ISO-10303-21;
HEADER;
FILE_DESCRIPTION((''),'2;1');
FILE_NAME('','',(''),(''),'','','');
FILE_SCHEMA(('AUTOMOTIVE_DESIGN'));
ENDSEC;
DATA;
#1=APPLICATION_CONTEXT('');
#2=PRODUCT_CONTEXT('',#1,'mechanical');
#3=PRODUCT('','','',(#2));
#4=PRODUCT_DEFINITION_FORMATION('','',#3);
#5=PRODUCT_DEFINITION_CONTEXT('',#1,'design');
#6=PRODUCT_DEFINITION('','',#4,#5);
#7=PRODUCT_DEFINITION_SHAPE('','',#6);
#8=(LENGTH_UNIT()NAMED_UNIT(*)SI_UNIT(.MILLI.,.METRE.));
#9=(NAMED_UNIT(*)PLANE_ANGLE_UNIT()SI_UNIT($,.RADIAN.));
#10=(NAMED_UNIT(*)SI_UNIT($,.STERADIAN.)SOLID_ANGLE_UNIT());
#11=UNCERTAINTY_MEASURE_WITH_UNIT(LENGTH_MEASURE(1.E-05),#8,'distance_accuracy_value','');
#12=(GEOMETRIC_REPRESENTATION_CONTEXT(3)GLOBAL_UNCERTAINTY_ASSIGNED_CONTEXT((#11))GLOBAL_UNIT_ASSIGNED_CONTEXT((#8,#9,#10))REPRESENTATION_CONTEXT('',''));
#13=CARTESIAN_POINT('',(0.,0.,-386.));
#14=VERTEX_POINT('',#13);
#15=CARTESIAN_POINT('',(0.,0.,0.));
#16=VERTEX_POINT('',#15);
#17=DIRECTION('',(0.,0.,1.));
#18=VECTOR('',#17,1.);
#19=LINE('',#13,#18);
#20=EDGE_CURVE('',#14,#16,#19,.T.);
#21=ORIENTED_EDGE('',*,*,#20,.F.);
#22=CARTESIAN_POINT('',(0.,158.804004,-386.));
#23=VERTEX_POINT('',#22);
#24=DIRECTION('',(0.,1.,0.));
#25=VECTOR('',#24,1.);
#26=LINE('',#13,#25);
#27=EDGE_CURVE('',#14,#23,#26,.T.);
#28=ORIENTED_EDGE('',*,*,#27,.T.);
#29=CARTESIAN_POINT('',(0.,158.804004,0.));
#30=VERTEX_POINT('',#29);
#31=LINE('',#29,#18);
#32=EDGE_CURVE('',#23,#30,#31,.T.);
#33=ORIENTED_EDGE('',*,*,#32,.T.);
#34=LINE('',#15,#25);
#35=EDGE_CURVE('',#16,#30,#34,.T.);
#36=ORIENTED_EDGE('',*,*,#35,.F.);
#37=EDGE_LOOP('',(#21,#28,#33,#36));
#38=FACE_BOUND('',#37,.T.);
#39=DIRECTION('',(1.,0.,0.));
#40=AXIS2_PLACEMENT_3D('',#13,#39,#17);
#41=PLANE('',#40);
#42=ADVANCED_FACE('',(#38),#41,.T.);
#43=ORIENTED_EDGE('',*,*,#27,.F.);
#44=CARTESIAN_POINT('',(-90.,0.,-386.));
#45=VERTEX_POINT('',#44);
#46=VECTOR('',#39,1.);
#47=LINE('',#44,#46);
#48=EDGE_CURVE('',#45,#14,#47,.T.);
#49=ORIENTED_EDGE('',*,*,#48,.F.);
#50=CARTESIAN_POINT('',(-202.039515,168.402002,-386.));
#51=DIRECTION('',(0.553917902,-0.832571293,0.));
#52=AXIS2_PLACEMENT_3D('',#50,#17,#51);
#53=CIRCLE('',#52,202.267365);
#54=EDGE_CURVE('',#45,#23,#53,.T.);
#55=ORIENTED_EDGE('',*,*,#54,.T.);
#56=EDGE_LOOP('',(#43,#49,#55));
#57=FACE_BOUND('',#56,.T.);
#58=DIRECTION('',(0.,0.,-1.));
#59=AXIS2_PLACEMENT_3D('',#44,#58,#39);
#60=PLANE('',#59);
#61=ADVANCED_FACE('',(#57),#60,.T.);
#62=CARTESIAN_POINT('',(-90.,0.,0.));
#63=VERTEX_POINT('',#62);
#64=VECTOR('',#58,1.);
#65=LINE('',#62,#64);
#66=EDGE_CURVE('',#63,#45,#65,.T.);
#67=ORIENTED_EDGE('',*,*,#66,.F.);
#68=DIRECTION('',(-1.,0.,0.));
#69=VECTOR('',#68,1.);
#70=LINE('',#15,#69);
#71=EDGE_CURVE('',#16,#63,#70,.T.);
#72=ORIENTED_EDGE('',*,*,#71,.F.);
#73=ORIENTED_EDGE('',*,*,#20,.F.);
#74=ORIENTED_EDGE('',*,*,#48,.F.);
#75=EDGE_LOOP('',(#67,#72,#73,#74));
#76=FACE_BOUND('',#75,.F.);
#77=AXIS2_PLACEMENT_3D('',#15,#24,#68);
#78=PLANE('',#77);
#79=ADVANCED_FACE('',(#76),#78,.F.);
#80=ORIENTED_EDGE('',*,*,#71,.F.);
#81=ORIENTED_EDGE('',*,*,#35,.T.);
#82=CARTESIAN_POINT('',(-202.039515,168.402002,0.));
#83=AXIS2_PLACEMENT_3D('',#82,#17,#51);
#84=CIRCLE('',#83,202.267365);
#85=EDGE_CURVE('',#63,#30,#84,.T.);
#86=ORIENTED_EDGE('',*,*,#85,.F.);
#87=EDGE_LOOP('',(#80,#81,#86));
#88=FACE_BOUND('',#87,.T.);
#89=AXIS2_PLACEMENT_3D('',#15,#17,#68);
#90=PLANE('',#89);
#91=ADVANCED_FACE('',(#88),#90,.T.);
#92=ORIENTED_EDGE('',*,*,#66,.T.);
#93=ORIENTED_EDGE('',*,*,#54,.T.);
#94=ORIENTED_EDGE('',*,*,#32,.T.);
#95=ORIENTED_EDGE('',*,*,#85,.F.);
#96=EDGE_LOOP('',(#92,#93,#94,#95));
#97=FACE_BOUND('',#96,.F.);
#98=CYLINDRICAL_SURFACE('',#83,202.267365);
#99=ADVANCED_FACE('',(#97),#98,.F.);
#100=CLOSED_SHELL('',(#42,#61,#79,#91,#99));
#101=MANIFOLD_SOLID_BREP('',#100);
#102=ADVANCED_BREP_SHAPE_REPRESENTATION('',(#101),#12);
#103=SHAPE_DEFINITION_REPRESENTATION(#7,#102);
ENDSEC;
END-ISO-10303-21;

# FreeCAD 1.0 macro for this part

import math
import FreeCAD as App
import Part
import Sketcher
from FreeCAD import Vector
Q = App.Units.Quantity

doc = App.newDocument("Part")
body = doc.addObject("PartDesign::Body", "Body")

# Sketch on XZ plane
sketch1 = doc.addObject("Sketcher::SketchObject", "Sketch")
body.addObject(sketch1)
sketch1.AttachmentSupport = (doc.XZ_Plane, [""])
sketch1.MapMode = "FlatFace"
sketch1.addGeometry(Part.LineSegment(Vector(-90, 0, 0), Vector(0, 0, 0)), False)
sketch1.addGeometry(Part.LineSegment(Vector(0, 0, 0), Vector(0, -386, 0)), False)
sketch1.addGeometry(Part.LineSegment(Vector(0, -386, 0), Vector(-90, -386, 0)), False)
sketch1.addGeometry(Part.LineSegment(Vector(-90, -386, 0), Vector(-90, 0, 0)), False)
sketch1.addConstraint(Sketcher.Constraint("Coincident", 0, 2, 1, 1))
sketch1.addConstraint(Sketcher.Constraint("Coincident", 1, 2, 2, 1))
sketch1.addConstraint(Sketcher.Constraint("Coincident", 2, 2, 3, 1))
sketch1.addConstraint(Sketcher.Constraint("Coincident", 3, 2, 0, 1))
sketch1.addConstraint(Sketcher.Constraint("Horizontal", 0))
sketch1.addConstraint(Sketcher.Constraint("Vertical", 1))
sketch1.addConstraint(Sketcher.Constraint("Horizontal", 2))
sketch1.addConstraint(Sketcher.Constraint("Vertical", 3))
sketch1.addConstraint(Sketcher.Constraint("Coincident", 0, 2, -1, 1))
sketch1.addConstraint(Sketcher.Constraint("DistanceX", 0, 1, 0, 2, Q("90 mm")))
sketch1.addConstraint(Sketcher.Constraint("DistanceY", 1, 2, 1, 1, Q("386 mm")))
pad1 = doc.addObject("PartDesign::Pad", "Pad")
body.addObject(pad1)
pad1.Profile = sketch1
pad1.Length = 178
pad1.Reversed = True

# Sketch on XY plane
sketch2 = doc.addObject("Sketcher::SketchObject", "Sketch001")
body.addObject(sketch2)
sketch2.AttachmentSupport = (doc.XY_Plane, [""])
sketch2.MapMode = "FlatFace"
sketch2.addGeometry(Part.LineSegment(Vector(0, 178, 0), Vector(-90, 178, 0)), False)
sketch2.addGeometry(Part.LineSegment(Vector(-90, 178, 0), Vector(-90, 0, 0)), False)
sketch2.addGeometry(Part.ArcOfCircle(Part.Circle(Vector(-202, 168, 0), Vector(0, 0, 1), 202), math.radians(-56), math.radians(3)), False)
sketch2.addConstraint(Sketcher.Constraint("Coincident", 0, 2, 1, 1))
sketch2.addConstraint(Sketcher.Constraint("Coincident", 1, 2, 2, 1))
sketch2.addConstraint(Sketcher.Constraint("Coincident", 2, 2, 0, 1))
sketch2.addConstraint(Sketcher.Constraint("Horizontal", 0))
sketch2.addConstraint(Sketcher.Constraint("Vertical", 1))
sketch2.addConstraint(Sketcher.Constraint("PointOnObject", 1, 2, -1))
sketch2.addConstraint(Sketcher.Constraint("PointOnObject", 2, 2, -2))
sketch2.addConstraint(Sketcher.Constraint("DistanceX", 0, 2, 0, 1, Q("90 mm")))
sketch2.addConstraint(Sketcher.Constraint("DistanceY", 1, 2, 1, 1, Q("178 mm")))
sketch2.addConstraint(Sketcher.Constraint("Radius", 2, Q("202.2672 mm")))
pocket1 = doc.addObject("PartDesign::Pocket", "Pocket")
body.addObject(pocket1)
pocket1.Profile = sketch2
pocket1.Type = "ThroughAll"

doc.recompute()
